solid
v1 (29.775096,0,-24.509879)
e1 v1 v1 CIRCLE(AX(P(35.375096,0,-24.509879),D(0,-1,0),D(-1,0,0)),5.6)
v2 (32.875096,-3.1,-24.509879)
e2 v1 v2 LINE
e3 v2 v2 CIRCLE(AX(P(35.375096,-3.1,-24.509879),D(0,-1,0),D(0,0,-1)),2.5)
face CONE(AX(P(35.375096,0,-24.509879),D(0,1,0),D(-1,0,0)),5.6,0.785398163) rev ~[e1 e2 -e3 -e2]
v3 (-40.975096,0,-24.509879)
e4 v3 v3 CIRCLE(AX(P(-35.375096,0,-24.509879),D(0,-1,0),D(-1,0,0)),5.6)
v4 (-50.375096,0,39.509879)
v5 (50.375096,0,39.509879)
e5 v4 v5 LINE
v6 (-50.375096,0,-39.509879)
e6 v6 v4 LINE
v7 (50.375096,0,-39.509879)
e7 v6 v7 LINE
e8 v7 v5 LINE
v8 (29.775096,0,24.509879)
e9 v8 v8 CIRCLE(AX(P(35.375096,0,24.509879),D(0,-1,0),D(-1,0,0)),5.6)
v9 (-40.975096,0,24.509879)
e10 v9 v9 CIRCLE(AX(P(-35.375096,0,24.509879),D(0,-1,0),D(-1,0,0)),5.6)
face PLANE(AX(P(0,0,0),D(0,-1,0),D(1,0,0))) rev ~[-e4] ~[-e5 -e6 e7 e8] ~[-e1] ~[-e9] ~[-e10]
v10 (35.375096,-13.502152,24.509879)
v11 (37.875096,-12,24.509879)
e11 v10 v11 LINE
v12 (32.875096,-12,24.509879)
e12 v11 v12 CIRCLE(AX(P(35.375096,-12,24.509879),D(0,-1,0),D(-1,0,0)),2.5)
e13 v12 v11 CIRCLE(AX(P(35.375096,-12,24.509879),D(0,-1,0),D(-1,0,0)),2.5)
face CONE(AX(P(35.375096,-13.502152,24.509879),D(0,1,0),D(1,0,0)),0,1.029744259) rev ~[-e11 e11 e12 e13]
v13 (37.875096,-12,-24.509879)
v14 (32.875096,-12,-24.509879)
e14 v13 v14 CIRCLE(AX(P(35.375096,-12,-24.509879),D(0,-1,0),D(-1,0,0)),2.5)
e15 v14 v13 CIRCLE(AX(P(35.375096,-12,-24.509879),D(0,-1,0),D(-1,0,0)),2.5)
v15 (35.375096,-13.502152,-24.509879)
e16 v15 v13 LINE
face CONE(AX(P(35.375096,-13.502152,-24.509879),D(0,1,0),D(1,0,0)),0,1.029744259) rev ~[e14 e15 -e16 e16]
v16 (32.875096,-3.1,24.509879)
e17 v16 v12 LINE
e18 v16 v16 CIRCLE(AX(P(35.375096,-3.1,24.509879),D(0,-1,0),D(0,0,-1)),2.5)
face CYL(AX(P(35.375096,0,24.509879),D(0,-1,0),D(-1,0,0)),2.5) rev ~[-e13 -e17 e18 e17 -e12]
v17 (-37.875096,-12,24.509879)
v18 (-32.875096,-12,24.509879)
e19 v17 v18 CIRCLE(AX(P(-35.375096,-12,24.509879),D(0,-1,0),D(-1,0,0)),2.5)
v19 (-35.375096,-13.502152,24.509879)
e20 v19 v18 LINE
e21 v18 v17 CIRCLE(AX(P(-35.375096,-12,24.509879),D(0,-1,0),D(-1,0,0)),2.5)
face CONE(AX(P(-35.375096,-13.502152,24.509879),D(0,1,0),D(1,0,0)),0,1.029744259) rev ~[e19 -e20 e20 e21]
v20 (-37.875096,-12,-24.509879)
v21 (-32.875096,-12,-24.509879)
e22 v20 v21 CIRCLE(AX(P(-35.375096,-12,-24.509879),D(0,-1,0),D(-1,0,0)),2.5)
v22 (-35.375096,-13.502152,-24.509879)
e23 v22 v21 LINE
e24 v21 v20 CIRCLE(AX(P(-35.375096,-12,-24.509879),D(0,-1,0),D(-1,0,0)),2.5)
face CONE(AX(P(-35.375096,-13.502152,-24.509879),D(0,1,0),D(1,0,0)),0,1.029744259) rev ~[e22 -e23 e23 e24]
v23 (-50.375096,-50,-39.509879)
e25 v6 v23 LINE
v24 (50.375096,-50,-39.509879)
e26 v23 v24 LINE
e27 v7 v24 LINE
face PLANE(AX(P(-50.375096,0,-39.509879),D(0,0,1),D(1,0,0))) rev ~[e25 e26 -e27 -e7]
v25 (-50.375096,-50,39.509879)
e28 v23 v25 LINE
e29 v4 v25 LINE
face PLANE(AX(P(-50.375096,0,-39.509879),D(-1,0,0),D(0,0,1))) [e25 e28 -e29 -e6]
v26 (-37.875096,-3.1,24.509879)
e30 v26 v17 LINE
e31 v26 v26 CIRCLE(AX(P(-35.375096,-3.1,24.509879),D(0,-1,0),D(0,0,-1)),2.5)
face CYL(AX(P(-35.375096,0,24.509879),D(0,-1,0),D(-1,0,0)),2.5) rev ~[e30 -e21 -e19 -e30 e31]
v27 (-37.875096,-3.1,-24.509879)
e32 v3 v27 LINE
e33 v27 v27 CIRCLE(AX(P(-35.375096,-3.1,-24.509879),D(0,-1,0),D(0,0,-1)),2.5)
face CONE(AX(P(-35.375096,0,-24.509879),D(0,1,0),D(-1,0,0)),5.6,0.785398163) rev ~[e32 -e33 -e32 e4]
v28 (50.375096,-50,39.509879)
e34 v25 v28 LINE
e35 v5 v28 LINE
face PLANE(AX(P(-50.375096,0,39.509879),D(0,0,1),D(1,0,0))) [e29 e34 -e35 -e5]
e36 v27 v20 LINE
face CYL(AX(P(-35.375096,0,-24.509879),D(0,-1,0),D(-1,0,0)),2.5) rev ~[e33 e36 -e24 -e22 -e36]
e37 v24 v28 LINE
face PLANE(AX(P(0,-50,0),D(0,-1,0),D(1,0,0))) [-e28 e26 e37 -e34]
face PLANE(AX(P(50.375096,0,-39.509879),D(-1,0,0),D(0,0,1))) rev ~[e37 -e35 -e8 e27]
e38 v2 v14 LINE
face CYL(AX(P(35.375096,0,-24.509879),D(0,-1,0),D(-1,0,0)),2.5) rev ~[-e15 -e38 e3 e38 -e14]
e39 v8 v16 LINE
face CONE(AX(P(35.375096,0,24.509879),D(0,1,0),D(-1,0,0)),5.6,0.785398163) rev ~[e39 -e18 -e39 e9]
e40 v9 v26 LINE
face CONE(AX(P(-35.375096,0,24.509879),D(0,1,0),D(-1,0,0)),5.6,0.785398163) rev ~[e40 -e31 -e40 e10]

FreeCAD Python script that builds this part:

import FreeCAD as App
import Part
import Sketcher
Q = App.Units.Quantity


def add_polygon(sketch, points):
    """Adds a closed chain of lines whose ends are joined by coincident constraints."""
    first, n = sketch.GeometryCount, len(points)
    for a, b in zip(points, points[1:] + points[:1]):
        sketch.addGeometry(Part.LineSegment(App.Vector(*a, 0), App.Vector(*b, 0)), False)
    for i in range(n):
        sketch.addConstraint(Sketcher.Constraint("Coincident", first + i, 2, first + (i + 1) % n, 1))

doc = App.newDocument("Part")
body = doc.addObject("PartDesign::Body", "Body")

# Sketch on XZ plane
sketch1 = doc.addObject("Sketcher::SketchObject", "Sketch")
body.addObject(sketch1)
sketch1.AttachmentSupport = (doc.XZ_Plane, [""])
sketch1.MapMode = "FlatFace"
add_polygon(sketch1, [(-50, 40), (-50, -40), (50, -40), (50, 40)])  # lines 0-3
sketch1.addConstraint(Sketcher.Constraint("Vertical", 0))
sketch1.addConstraint(Sketcher.Constraint("Horizontal", 1))
sketch1.addConstraint(Sketcher.Constraint("Vertical", 2))
sketch1.addConstraint(Sketcher.Constraint("Horizontal", 3))
sketch1.addConstraint(Sketcher.Constraint("Symmetric", 0, 2, 2, 2, -1, 1))
sketch1.addConstraint(Sketcher.Constraint("DistanceY", 0, 2, 0, 1, Q("79.019759 mm")))
sketch1.addConstraint(Sketcher.Constraint("DistanceX", 1, 1, 1, 2, Q("100.750193 mm")))
pad1 = doc.addObject("PartDesign::Pad", "Pad")
body.addObject(pad1)
pad1.Profile = sketch1
pad1.Length = 50

# Sketch on XZ plane
sketch2 = doc.addObject("Sketcher::SketchObject", "Sketch001")
body.addObject(sketch2)
sketch2.AttachmentSupport = (doc.XZ_Plane, [""])
sketch2.MapMode = "FlatFace"
sketch2.addGeometry(Part.Circle(App.Vector(-35.4, 24.5, 0), App.Vector(0, 0, 1), 2.5), False)
sketch2.addGeometry(Part.Circle(App.Vector(35.4, 24.5, 0), App.Vector(0, 0, 1), 2.5), False)
sketch2.addGeometry(Part.Circle(App.Vector(35.4, -24.5, 0), App.Vector(0, 0, 1), 2.5), False)
sketch2.addGeometry(Part.Circle(App.Vector(-35.4, -24.5, 0), App.Vector(0, 0, 1), 2.5), False)
sketch2.addConstraint(Sketcher.Constraint("Equal", 0, 1))
sketch2.addConstraint(Sketcher.Constraint("Equal", 1, 2))
sketch2.addConstraint(Sketcher.Constraint("Equal", 2, 3))
sketch2.addConstraint(Sketcher.Constraint("Symmetric", 0, 3, 2, 3, -1, 1))
sketch2.addConstraint(Sketcher.Constraint("Symmetric", 1, 3, 3, 3, -1, 1))
sketch2.addConstraint(Sketcher.Constraint("Symmetric", 0, 3, 1, 3, -2))
sketch2.addConstraint(Sketcher.Constraint("Diameter", 0, Q("5 mm")))
sketch2.addConstraint(Sketcher.Constraint("DistanceY", -1, 1, 0, 3, Q("24.509879 mm")))
sketch2.addConstraint(Sketcher.Constraint("DistanceX", 0, 3, -1, 1, Q("35.375096 mm")))
doc.recompute()
hole = doc.addObject("PartDesign::Hole", "Hole")
body.addObject(hole)
hole.Profile = sketch2
hole.ThreadType = "None"
hole.Diameter = 5
hole.DepthType = "Dimension"
hole.Depth = 12
hole.DrillPoint = "Angled"
hole.DrillPointAngle = 118
hole.HoleCutType = "Countersink"
hole.HoleCutDiameter = 11.2
hole.HoleCutCountersinkAngle = 90
hole.Reversed = True

doc.recompute()
